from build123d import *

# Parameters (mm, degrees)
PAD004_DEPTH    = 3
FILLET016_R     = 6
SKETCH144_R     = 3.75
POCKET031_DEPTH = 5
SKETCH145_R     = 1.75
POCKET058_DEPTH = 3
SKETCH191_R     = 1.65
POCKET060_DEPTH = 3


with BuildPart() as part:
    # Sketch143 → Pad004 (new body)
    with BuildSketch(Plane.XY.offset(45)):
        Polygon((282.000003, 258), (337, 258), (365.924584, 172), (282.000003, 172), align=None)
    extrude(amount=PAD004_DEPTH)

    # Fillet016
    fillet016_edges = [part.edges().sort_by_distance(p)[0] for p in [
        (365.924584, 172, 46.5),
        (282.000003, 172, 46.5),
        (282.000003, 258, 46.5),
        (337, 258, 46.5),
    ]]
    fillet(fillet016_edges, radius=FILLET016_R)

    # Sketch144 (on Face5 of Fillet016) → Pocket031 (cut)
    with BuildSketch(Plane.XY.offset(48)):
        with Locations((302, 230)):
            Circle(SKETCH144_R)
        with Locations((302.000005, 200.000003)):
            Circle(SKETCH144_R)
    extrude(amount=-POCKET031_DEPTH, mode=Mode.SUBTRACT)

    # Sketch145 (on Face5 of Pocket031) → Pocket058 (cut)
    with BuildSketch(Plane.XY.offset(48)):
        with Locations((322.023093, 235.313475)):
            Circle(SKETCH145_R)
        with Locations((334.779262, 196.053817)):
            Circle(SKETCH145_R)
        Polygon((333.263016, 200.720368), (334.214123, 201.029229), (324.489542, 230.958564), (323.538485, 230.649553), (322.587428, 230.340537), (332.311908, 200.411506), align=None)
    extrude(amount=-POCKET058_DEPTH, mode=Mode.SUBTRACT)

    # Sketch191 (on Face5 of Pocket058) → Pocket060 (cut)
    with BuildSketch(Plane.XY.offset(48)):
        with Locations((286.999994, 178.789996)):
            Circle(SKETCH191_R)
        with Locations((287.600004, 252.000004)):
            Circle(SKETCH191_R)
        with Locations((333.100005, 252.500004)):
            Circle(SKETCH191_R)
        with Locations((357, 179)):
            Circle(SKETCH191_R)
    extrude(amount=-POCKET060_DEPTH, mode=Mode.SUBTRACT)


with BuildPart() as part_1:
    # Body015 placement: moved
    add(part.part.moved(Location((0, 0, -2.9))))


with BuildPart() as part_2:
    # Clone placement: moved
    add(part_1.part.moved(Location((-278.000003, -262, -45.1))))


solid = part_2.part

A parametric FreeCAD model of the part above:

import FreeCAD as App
import Part
import Sketcher
Q = App.Units.Quantity


def edges_at(feature, points):
    """Names of the edges that pass closest to the given points."""
    edges = feature.Shape.Edges
    near = lambda p: min(range(len(edges)), key=lambda i: edges[i].distToShape(Part.Vertex(*p))[0])
    return sorted({f"Edge{near(p) + 1}" for p in points})


def add_polygon(sketch, points):
    """Adds a closed chain of lines whose ends are joined by coincident constraints."""
    first, n = sketch.GeometryCount, len(points)
    for a, b in zip(points, points[1:] + points[:1]):
        sketch.addGeometry(Part.LineSegment(App.Vector(*a, 0), App.Vector(*b, 0)), False)
    for i in range(n):
        sketch.addConstraint(Sketcher.Constraint("Coincident", first + i, 2, first + (i + 1) % n, 1))

doc = App.newDocument("Part")
body = doc.addObject("PartDesign::Body", "Body")

# Sketch on XY plane
sketch1 = body.newObject("Sketcher::SketchObject", "Sketch")
sketch1.AttachmentSupport = (doc.getObject("XY_Plane"), [""])
sketch1.MapMode = "FlatFace"
sketch1.AttachmentOffset = App.Placement(App.Vector(0, 0, 45), App.Rotation())
add_polygon(sketch1, [(337, 258), (282, 258), (282, 172), (366, 172)])  # lines 0-3
sketch1.addConstraint(Sketcher.Constraint("Horizontal", 0))
sketch1.addConstraint(Sketcher.Constraint("Vertical", 1))
sketch1.addConstraint(Sketcher.Constraint("Horizontal", 2))
sketch1.addConstraint(Sketcher.Constraint("DistanceY", 1, 2, 1, 1, Q("86 mm")))
sketch1.addConstraint(Sketcher.Constraint("DistanceY", -1, 1, 0, 2, Q("258 mm")))
sketch1.addConstraint(Sketcher.Constraint("DistanceX", -1, 1, 3, 2, Q("337 mm")))
sketch1.addConstraint(Sketcher.Constraint("DistanceX", 2, 1, 2, 2, Q("83.924581 mm")))
sketch1.addConstraint(Sketcher.Constraint("Distance", 3, Q("90.73385 mm")))
pad1 = body.newObject("PartDesign::Pad", "Pad")
pad1.Profile = sketch1
pad1.Length = 3
doc.recompute()

fillet = body.newObject("PartDesign::Fillet", "Fillet")
fillet.Base = (pad1, edges_at(pad1, [
    (365.925, 172, 46.5),
    (282, 172, 46.5),
    (282, 258, 46.5),
    (337, 258, 46.5),
]))
fillet.Radius = 6

# Sketch on XY plane
sketch2 = body.newObject("Sketcher::SketchObject", "Sketch001")
sketch2.AttachmentSupport = (doc.getObject("XY_Plane"), [""])
sketch2.MapMode = "FlatFace"
sketch2.AttachmentOffset = App.Placement(App.Vector(0, 0, 48), App.Rotation())
sketch2.addGeometry(Part.Circle(App.Vector(302, 230, 0), App.Vector(0, 0, 1), 3.8), False)
sketch2.addGeometry(Part.Circle(App.Vector(302, 200, 0), App.Vector(0, 0, 1), 3.8), False)
sketch2.addConstraint(Sketcher.Constraint("Equal", 0, 1))
sketch2.addConstraint(Sketcher.Constraint("Diameter", 0, Q("7.5 mm")))
sketch2.addConstraint(Sketcher.Constraint("DistanceX", -1, 1, 0, 3, Q("302 mm")))
sketch2.addConstraint(Sketcher.Constraint("DistanceY", -1, 1, 0, 3, Q("230 mm")))
sketch2.addConstraint(Sketcher.Constraint("DistanceX", -1, 1, 1, 3, Q("302.000005 mm")))
sketch2.addConstraint(Sketcher.Constraint("DistanceY", -1, 1, 1, 3, Q("200.000003 mm")))
pocket1 = body.newObject("PartDesign::Pocket", "Pocket")
pocket1.Profile = sketch2
pocket1.Length = 5

# Sketch on XY plane
sketch3 = body.newObject("Sketcher::SketchObject", "Sketch002")
sketch3.AttachmentSupport = (doc.getObject("XY_Plane"), [""])
sketch3.MapMode = "FlatFace"
sketch3.AttachmentOffset = App.Placement(App.Vector(0, 0, 48), App.Rotation())
sketch3.addGeometry(Part.Circle(App.Vector(322, 235.3, 0), App.Vector(0, 0, 1), 1.8), False)  # 0
sketch3.addGeometry(Part.Circle(App.Vector(334.8, 196.1, 0), App.Vector(0, 0, 1), 1.8), False)  # 1
add_polygon(sketch3, [(333.3, 200.7), (334.2, 201), (324.5, 231), (323.5, 230.6), (322.6, 230.3), (332.3, 200.4)])  # lines 2-7
sketch3.addConstraint(Sketcher.Constraint("Equal", 0, 1))
sketch3.addConstraint(Sketcher.Constraint("Perpendicular", 3, 5))
sketch3.addConstraint(Sketcher.Constraint("Perpendicular", 5, 6))
sketch3.addConstraint(Sketcher.Constraint("Parallel", 2, 7))
sketch3.addConstraint(Sketcher.Constraint("Equal", 2, 4))
sketch3.addConstraint(Sketcher.Constraint("Equal", 4, 5))
sketch3.addConstraint(Sketcher.Constraint("Diameter", 0, Q("3.5 mm")))
sketch3.addConstraint(Sketcher.Constraint("Distance", 2, Q("1 mm")))
sketch3.addConstraint(Sketcher.Constraint("Distance", 3, Q("31.46955 mm")))
sketch3.addConstraint(Sketcher.Constraint("Distance", 6, Q("31.46923 mm")))
sketch3.addConstraint(Sketcher.Constraint("DistanceX", -1, 1, 1, 3, Q("334.779262 mm")))
sketch3.addConstraint(Sketcher.Constraint("DistanceY", -1, 1, 2, 2, Q("201.029229 mm")))
sketch3.addConstraint(Sketcher.Constraint("DistanceX", -1, 1, 3, 2, Q("324.489542 mm")))
sketch3.addConstraint(Sketcher.Constraint("DistanceX", -1, 1, 5, 2, Q("322.587428 mm")))
sketch3.addConstraint(Sketcher.Constraint("DistanceX", -1, 1, 6, 2, Q("332.311908 mm")))
sketch3.addConstraint(Sketcher.Constraint("DistanceX", 0, 3, 1, 3, Q("12.756169 mm")))
sketch3.addConstraint(Sketcher.Constraint("DistanceY", 1, 3, 0, 3, Q("39.259658 mm")))
sketch3.addConstraint(Sketcher.Constraint("DistanceY", 1, 3, 2, 2, Q("4.975412 mm")))
pocket2 = body.newObject("PartDesign::Pocket", "Pocket001")
pocket2.Profile = sketch3
pocket2.Length = 3

# Sketch on XY plane
sketch4 = body.newObject("Sketcher::SketchObject", "Sketch003")
sketch4.AttachmentSupport = (doc.getObject("XY_Plane"), [""])
sketch4.MapMode = "FlatFace"
sketch4.AttachmentOffset = App.Placement(App.Vector(0, 0, 48), App.Rotation())
sketch4.addGeometry(Part.Circle(App.Vector(287, 178.8, 0), App.Vector(0, 0, 1), 1.6), False)
sketch4.addGeometry(Part.Circle(App.Vector(287.6, 252, 0), App.Vector(0, 0, 1), 1.6), False)
sketch4.addGeometry(Part.Circle(App.Vector(333.1, 252.5, 0), App.Vector(0, 0, 1), 1.6), False)
sketch4.addGeometry(Part.Circle(App.Vector(357, 179, 0), App.Vector(0, 0, 1), 1.6), False)
sketch4.addConstraint(Sketcher.Constraint("Equal", 0, 1))
sketch4.addConstraint(Sketcher.Constraint("Equal", 1, 2))
sketch4.addConstraint(Sketcher.Constraint("Equal", 2, 3))
sketch4.addConstraint(Sketcher.Constraint("Diameter", 0, Q("3.3 mm")))
sketch4.addConstraint(Sketcher.Constraint("DistanceX", -1, 1, 3, 3, Q("357 mm")))
sketch4.addConstraint(Sketcher.Constraint("DistanceY", -1, 1, 3, 3, Q("179 mm")))
sketch4.addConstraint(Sketcher.Constraint("DistanceX", 1, 3, 2, 3, Q("45.500001 mm")))
sketch4.addConstraint(Sketcher.Constraint("DistanceY", 1, 3, 2, 3, Q("0.5 mm")))
sketch4.addConstraint(Sketcher.Constraint("DistanceX", 0, 3, 1, 3, Q("0.60001 mm")))
sketch4.addConstraint(Sketcher.Constraint("DistanceX", -1, 1, 0, 3, Q("286.999994 mm")))
sketch4.addConstraint(Sketcher.Constraint("DistanceY", -1, 1, 0, 3, Q("178.789996 mm")))
sketch4.addConstraint(Sketcher.Constraint("DistanceY", -1, 1, 1, 3, Q("252.000004 mm")))
pocket3 = body.newObject("PartDesign::Pocket", "Pocket002")
pocket3.Profile = sketch4
pocket3.Length = 3
body2 = doc.addObject("PartDesign::Body", "Body001")
doc.recompute()

body.Placement = App.Placement(App.Vector(0, 0, -2.9), App.Rotation(App.Vector(0, 0, 1), 0))
boolean = body2.newObject("PartDesign::Boolean", "Boolean")
boolean.Type = "Fuse"
boolean.addObjects([body])
body3 = doc.addObject("PartDesign::Body", "Body002")
doc.recompute()

body2.Placement = App.Placement(App.Vector(-278.000003, -262, -45.1), App.Rotation(App.Vector(0, 0, 1), 0))
boolean2 = body3.newObject("PartDesign::Boolean", "Boolean001")
boolean2.Type = "Fuse"
boolean2.addObjects([body2])

doc.recompute()
